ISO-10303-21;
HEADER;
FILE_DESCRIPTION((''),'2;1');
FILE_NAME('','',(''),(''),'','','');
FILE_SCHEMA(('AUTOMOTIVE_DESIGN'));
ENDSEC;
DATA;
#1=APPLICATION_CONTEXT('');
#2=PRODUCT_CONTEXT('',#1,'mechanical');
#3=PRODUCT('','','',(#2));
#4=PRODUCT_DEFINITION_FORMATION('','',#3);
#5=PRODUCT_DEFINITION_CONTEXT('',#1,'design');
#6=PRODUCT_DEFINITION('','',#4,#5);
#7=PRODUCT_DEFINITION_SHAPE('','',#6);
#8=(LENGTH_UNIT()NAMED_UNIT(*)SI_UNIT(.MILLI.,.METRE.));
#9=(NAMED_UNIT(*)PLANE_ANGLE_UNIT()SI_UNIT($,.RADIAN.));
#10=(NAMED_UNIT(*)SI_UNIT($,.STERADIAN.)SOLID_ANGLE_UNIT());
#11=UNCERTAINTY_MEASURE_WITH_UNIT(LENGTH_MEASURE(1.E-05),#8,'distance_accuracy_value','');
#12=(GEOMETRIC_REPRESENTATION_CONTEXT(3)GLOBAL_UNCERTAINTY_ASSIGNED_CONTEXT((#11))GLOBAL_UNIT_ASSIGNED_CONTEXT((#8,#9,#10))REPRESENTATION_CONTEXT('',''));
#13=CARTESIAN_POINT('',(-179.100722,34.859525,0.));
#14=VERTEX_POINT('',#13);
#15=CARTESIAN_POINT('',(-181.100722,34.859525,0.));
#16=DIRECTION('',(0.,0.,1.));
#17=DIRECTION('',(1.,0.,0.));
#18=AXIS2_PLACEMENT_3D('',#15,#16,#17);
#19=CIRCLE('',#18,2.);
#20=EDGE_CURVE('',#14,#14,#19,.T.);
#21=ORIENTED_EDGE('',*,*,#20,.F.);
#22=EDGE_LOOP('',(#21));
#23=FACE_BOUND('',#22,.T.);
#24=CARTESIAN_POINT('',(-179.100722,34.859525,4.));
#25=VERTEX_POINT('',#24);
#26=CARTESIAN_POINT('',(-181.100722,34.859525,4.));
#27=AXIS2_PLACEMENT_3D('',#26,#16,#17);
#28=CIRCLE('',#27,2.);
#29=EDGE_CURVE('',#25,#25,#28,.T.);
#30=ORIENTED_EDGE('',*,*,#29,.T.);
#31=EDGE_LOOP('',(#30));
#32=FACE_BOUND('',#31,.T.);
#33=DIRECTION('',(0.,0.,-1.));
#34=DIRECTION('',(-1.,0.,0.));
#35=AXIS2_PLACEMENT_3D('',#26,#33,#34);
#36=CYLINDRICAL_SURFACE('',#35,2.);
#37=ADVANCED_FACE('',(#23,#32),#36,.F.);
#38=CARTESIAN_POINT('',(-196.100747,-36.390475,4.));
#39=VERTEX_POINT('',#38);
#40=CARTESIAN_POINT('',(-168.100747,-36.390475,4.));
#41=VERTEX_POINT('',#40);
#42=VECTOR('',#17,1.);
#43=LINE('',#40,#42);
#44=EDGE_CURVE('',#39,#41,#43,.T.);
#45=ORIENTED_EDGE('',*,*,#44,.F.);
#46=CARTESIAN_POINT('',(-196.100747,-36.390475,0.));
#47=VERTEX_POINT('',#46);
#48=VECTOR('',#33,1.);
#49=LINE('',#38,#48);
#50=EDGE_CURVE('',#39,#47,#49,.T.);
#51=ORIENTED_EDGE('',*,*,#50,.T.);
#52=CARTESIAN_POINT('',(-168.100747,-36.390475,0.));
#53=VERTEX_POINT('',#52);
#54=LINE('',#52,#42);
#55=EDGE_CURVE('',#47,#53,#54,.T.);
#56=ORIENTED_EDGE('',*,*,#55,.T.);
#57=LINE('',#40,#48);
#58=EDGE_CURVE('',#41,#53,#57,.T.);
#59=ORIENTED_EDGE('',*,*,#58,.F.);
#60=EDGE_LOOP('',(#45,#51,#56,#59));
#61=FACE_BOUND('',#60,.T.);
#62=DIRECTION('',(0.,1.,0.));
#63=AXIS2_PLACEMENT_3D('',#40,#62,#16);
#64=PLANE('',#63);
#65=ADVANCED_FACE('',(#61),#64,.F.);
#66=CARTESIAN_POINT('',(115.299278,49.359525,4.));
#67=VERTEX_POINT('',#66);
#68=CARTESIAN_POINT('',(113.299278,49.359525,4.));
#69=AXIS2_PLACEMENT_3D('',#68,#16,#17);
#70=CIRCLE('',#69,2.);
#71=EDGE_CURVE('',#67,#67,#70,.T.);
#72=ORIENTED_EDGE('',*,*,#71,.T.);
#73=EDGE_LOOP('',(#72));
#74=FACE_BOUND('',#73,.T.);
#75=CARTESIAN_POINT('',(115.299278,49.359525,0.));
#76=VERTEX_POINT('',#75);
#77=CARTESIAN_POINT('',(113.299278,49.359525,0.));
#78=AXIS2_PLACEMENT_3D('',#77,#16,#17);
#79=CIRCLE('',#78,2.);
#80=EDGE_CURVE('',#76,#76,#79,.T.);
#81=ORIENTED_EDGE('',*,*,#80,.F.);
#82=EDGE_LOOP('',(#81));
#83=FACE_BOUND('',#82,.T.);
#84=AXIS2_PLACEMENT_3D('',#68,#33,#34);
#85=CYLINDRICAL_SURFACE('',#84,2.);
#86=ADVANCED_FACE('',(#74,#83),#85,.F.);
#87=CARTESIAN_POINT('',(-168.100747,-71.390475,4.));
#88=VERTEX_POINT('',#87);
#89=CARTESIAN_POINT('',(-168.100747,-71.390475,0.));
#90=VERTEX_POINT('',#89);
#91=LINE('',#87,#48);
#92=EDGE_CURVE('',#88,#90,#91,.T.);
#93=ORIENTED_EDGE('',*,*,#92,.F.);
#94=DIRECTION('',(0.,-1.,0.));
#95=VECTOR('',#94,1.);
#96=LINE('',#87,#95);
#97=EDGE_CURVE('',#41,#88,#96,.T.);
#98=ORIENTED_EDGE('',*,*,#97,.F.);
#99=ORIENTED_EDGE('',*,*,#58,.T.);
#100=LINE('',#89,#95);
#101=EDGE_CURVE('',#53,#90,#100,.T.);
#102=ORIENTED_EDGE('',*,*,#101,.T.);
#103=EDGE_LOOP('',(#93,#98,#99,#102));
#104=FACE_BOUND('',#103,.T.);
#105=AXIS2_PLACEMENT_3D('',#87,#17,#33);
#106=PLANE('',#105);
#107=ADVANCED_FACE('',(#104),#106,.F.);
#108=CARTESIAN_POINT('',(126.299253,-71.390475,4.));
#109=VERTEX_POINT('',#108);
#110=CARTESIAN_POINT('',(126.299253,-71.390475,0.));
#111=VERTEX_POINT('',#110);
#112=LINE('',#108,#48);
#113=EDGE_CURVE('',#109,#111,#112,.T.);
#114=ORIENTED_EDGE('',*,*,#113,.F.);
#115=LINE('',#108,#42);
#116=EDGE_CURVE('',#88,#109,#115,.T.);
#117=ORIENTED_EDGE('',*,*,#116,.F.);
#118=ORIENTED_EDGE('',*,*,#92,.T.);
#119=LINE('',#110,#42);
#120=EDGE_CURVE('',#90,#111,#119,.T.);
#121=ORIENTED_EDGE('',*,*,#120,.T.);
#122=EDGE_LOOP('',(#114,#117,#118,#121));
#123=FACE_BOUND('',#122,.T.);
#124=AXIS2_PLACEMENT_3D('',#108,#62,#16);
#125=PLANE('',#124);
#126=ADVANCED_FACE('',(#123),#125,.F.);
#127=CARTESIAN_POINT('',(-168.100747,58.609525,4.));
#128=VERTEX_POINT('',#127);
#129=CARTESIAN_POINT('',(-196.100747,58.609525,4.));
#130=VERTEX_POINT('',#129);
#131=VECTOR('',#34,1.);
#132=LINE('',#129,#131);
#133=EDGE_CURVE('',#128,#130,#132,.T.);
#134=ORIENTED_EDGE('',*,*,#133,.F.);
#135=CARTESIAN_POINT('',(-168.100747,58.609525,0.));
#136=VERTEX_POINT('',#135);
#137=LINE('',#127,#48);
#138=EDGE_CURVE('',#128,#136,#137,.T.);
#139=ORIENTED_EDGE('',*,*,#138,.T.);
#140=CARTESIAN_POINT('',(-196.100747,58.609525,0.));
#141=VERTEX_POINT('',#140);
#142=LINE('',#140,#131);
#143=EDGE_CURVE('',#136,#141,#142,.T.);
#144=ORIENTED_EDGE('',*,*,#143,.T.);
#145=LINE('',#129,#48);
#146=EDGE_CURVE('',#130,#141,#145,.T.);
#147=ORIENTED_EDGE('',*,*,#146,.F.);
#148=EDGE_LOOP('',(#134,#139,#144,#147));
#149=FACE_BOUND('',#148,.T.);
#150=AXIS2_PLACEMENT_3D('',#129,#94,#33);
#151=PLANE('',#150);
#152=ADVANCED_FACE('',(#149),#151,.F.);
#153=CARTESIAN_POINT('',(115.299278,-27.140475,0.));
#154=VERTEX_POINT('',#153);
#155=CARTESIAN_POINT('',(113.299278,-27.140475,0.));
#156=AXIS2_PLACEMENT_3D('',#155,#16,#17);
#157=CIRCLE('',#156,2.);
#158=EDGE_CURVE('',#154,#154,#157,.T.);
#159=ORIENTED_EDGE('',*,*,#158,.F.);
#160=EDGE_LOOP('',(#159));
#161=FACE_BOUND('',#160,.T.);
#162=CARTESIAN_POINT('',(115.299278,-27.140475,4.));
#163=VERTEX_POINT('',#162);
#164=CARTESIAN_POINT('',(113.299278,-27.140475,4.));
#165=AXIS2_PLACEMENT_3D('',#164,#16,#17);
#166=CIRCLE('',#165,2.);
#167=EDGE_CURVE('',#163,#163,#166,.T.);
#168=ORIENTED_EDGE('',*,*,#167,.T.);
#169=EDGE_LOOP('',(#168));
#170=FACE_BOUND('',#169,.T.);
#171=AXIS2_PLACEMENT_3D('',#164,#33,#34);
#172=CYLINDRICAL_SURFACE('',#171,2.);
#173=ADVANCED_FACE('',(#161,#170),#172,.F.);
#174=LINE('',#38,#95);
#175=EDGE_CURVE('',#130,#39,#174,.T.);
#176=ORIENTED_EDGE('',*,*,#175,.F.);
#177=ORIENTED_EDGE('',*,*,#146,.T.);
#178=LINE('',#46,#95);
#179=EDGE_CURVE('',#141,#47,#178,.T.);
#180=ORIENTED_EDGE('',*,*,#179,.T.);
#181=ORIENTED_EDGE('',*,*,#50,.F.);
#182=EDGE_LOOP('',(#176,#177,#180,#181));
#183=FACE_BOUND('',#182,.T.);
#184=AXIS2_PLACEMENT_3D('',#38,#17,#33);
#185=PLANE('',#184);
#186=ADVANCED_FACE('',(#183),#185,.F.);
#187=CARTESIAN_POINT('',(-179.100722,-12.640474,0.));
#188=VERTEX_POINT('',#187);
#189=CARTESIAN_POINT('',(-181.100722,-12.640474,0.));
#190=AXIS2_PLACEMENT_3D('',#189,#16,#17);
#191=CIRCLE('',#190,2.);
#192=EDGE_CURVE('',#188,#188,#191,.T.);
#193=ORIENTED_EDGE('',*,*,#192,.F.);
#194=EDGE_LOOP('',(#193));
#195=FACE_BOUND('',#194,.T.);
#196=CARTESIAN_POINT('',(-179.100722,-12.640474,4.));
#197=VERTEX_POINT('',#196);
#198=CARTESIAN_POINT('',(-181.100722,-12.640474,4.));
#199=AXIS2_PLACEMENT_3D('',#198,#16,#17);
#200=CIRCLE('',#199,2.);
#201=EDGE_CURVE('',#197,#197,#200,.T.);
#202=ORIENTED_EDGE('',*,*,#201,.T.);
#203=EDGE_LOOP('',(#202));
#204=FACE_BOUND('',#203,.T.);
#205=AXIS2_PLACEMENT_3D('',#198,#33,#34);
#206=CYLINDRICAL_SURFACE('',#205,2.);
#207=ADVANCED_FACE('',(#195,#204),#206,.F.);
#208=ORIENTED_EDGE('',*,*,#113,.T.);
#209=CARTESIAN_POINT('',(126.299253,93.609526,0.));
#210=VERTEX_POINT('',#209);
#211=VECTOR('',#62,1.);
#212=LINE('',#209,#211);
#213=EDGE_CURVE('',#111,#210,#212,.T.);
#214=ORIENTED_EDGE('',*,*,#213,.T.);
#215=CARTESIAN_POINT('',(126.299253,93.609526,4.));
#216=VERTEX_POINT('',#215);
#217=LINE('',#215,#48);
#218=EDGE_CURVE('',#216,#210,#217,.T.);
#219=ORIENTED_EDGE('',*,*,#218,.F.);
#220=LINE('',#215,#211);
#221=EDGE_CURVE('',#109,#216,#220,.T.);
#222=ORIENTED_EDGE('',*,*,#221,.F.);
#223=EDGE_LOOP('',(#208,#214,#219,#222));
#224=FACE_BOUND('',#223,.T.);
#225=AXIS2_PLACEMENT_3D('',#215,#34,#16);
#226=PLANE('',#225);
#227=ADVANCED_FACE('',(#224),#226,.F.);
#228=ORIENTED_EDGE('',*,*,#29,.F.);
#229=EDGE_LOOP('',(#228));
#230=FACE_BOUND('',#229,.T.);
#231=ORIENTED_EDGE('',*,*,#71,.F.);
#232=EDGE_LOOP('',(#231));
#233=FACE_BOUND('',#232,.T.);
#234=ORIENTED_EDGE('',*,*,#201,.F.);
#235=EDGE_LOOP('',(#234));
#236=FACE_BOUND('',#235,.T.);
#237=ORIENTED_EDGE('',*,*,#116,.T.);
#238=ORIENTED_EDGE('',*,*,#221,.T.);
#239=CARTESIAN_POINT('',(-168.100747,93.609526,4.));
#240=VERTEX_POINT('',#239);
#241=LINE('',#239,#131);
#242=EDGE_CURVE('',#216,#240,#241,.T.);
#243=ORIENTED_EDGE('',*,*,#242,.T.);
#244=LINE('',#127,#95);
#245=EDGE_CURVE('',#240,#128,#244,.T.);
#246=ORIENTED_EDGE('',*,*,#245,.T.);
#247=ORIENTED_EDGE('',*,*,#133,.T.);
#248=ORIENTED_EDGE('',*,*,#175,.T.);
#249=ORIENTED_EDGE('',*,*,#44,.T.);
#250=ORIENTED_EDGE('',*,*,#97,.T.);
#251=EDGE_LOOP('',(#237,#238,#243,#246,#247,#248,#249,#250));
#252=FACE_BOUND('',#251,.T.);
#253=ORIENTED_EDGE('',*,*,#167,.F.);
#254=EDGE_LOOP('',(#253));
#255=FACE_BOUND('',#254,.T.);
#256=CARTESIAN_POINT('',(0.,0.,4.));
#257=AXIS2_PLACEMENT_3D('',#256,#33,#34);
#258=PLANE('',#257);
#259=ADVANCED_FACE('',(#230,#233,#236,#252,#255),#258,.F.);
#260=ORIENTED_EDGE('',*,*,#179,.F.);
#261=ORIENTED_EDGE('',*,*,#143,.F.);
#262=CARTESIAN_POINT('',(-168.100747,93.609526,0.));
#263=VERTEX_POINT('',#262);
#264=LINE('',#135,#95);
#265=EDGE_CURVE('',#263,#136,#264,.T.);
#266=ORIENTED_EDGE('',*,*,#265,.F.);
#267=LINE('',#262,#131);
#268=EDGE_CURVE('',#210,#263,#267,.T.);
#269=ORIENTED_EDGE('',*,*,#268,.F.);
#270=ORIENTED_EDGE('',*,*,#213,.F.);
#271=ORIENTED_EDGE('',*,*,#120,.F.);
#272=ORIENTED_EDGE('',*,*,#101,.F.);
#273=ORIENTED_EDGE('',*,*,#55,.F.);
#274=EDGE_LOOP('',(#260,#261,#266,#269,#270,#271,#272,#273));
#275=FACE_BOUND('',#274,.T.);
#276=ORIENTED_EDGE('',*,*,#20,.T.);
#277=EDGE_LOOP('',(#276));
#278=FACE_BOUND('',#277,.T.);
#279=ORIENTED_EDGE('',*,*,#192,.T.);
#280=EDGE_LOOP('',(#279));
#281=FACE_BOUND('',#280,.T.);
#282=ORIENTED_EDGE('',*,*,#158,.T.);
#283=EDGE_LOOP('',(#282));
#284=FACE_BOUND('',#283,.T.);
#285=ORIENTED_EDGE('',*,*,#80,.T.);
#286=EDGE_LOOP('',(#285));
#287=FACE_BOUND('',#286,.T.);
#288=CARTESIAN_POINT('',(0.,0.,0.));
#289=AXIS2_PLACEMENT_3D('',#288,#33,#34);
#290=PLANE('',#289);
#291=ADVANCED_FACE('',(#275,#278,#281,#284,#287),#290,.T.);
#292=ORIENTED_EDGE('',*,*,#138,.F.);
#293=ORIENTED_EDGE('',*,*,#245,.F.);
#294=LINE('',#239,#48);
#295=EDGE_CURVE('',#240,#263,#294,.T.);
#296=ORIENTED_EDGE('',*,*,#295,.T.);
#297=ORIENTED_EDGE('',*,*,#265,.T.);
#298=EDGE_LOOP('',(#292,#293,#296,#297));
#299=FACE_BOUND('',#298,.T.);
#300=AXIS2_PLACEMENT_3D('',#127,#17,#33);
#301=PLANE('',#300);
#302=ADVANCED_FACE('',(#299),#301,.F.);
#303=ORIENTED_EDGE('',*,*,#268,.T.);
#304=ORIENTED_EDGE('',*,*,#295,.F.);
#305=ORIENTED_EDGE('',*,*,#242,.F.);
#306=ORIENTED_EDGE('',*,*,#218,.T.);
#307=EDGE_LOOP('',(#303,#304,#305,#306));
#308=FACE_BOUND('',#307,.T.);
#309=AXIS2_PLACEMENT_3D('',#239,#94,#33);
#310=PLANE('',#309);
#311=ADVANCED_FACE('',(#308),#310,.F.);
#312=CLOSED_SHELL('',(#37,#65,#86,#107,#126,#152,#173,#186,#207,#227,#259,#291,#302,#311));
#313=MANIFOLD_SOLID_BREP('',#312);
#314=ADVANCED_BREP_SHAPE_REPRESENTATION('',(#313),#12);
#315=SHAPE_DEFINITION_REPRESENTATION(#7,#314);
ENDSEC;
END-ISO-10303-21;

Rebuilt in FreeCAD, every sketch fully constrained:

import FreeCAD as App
import Part
import Sketcher
from FreeCAD import Vector
Q = App.Units.Quantity


def add_polygon(sketch, points):
    """Adds a closed chain of lines whose ends are joined by coincident constraints."""
    first, n = sketch.GeometryCount, len(points)
    for a, b in zip(points, points[1:] + points[:1]):
        sketch.addGeometry(Part.LineSegment(App.Vector(*a, 0), App.Vector(*b, 0)), False)
    for i in range(n):
        sketch.addConstraint(Sketcher.Constraint("Coincident", first + i, 2, first + (i + 1) % n, 1))

doc = App.newDocument("Part")
params = doc.addObject("Spreadsheet::Sheet", "Params")
for row, (alias, value) in enumerate([
    ("sketch1_diameter", "4 mm"),
    ("sketch1_width", "28 mm"),
    ("sketch1_height", "95 mm"),
    ("sketch1_height2", "35 mm"),
    ("sketch1_width2", "294.4 mm"),
    ("pad1_length", "4 mm"),
], start=1):
    params.set(f"A{row}", alias)
    params.set(f"B{row}", "=" + value)
    params.setAlias(f"B{row}", alias)

body = doc.addObject("PartDesign::Body", "Body")

sketch1 = doc.addObject("Sketcher::SketchObject", "Sketch")
body.addObject(sketch1)
sketch1.AttachmentSupport = (doc.XY_Plane, [""])
sketch1.MapMode = "FlatFace"
add_polygon(sketch1, [(-168.1, 58.6), (-196.1, 58.6), (-196.1, -36.4), (-168.1, -36.4), (-168.1, -71.4), (126.3, -71.4), (126.3, 93.6), (-168.1, 93.6)])
sketch1.addGeometry(Part.Circle(Vector(113.3, -27.1, 0), Vector(0, 0, 1), 2), False)
sketch1.addGeometry(Part.Circle(Vector(-181.1, -12.6, 0), Vector(0, 0, 1), 2), False)
sketch1.addGeometry(Part.Circle(Vector(113.3, 49.4, 0), Vector(0, 0, 1), 2), False)
sketch1.addGeometry(Part.Circle(Vector(-181.1, 34.9, 0), Vector(0, 0, 1), 2), False)
sketch1.addConstraint([
    Sketcher.Constraint("Horizontal", 0),
    Sketcher.Constraint("Vertical", 1),
    Sketcher.Constraint("Horizontal", 2),
    Sketcher.Constraint("Vertical", 3),
    Sketcher.Constraint("Horizontal", 4),
    Sketcher.Constraint("Vertical", 5),
    Sketcher.Constraint("Horizontal", 6),
    Sketcher.Constraint("Vertical", 7),
    Sketcher.Constraint("Equal", 8, 9),
    Sketcher.Constraint("Equal", 9, 10),
    Sketcher.Constraint("Equal", 10, 11),
    Sketcher.Constraint("Vertical", 8, 3, 10, 3),
    Sketcher.Constraint("Vertical", 9, 3, 11, 3),
    Sketcher.Constraint("Vertical", 3, 2, 6, 2),
    Sketcher.Constraint("Equal", 3, 7),
    Sketcher.Constraint("Diameter", 8, Q("4 mm")),
    Sketcher.Constraint("DistanceX", 0, 2, 0, 1, Q("28 mm")),
    Sketcher.Constraint("DistanceY", 1, 2, 1, 1, Q("95 mm")),
    Sketcher.Constraint("DistanceY", 3, 2, 3, 1, Q("35 mm")),
    Sketcher.Constraint("DistanceX", 4, 1, 4, 2, Q("294.4 mm")),
    Sketcher.Constraint("DistanceY", 9, 3, 10, 3, Q("62 mm")),
    Sketcher.Constraint("DistanceY", 8, 3, 11, 3, Q("62 mm")),
    Sketcher.Constraint("DistanceX", 9, 3, 8, 3, Q("294.4 mm")),
    Sketcher.Constraint("DistanceY", 8, 3, 9, 3, Q("14.5 mm")),
    Sketcher.Constraint("DistanceY", 11, 3, 0, 2, Q("23.75 mm")),
    Sketcher.Constraint("DistanceX", -1, 1, 8, 3, Q("113.299278 mm")),
    Sketcher.Constraint("DistanceY", 8, 3, -1, 1, Q("27.140475 mm")),
    Sketcher.Constraint("DistanceX", 0, 2, -1, 1, Q("196.100747 mm")),
])
sketch1.setExpression("Constraints[23]", "Params.sketch1_diameter")
sketch1.setExpression("Constraints[24]", "Params.sketch1_width")
sketch1.setExpression("Constraints[25]", "Params.sketch1_height")
sketch1.setExpression("Constraints[26]", "Params.sketch1_height2")
sketch1.setExpression("Constraints[27]", "Params.sketch1_width2")
pad1 = doc.addObject("PartDesign::Pad", "Pad")
body.addObject(pad1)
pad1.Profile = sketch1
pad1.setExpression("Length", "Params.pad1_length")

doc.recompute()
